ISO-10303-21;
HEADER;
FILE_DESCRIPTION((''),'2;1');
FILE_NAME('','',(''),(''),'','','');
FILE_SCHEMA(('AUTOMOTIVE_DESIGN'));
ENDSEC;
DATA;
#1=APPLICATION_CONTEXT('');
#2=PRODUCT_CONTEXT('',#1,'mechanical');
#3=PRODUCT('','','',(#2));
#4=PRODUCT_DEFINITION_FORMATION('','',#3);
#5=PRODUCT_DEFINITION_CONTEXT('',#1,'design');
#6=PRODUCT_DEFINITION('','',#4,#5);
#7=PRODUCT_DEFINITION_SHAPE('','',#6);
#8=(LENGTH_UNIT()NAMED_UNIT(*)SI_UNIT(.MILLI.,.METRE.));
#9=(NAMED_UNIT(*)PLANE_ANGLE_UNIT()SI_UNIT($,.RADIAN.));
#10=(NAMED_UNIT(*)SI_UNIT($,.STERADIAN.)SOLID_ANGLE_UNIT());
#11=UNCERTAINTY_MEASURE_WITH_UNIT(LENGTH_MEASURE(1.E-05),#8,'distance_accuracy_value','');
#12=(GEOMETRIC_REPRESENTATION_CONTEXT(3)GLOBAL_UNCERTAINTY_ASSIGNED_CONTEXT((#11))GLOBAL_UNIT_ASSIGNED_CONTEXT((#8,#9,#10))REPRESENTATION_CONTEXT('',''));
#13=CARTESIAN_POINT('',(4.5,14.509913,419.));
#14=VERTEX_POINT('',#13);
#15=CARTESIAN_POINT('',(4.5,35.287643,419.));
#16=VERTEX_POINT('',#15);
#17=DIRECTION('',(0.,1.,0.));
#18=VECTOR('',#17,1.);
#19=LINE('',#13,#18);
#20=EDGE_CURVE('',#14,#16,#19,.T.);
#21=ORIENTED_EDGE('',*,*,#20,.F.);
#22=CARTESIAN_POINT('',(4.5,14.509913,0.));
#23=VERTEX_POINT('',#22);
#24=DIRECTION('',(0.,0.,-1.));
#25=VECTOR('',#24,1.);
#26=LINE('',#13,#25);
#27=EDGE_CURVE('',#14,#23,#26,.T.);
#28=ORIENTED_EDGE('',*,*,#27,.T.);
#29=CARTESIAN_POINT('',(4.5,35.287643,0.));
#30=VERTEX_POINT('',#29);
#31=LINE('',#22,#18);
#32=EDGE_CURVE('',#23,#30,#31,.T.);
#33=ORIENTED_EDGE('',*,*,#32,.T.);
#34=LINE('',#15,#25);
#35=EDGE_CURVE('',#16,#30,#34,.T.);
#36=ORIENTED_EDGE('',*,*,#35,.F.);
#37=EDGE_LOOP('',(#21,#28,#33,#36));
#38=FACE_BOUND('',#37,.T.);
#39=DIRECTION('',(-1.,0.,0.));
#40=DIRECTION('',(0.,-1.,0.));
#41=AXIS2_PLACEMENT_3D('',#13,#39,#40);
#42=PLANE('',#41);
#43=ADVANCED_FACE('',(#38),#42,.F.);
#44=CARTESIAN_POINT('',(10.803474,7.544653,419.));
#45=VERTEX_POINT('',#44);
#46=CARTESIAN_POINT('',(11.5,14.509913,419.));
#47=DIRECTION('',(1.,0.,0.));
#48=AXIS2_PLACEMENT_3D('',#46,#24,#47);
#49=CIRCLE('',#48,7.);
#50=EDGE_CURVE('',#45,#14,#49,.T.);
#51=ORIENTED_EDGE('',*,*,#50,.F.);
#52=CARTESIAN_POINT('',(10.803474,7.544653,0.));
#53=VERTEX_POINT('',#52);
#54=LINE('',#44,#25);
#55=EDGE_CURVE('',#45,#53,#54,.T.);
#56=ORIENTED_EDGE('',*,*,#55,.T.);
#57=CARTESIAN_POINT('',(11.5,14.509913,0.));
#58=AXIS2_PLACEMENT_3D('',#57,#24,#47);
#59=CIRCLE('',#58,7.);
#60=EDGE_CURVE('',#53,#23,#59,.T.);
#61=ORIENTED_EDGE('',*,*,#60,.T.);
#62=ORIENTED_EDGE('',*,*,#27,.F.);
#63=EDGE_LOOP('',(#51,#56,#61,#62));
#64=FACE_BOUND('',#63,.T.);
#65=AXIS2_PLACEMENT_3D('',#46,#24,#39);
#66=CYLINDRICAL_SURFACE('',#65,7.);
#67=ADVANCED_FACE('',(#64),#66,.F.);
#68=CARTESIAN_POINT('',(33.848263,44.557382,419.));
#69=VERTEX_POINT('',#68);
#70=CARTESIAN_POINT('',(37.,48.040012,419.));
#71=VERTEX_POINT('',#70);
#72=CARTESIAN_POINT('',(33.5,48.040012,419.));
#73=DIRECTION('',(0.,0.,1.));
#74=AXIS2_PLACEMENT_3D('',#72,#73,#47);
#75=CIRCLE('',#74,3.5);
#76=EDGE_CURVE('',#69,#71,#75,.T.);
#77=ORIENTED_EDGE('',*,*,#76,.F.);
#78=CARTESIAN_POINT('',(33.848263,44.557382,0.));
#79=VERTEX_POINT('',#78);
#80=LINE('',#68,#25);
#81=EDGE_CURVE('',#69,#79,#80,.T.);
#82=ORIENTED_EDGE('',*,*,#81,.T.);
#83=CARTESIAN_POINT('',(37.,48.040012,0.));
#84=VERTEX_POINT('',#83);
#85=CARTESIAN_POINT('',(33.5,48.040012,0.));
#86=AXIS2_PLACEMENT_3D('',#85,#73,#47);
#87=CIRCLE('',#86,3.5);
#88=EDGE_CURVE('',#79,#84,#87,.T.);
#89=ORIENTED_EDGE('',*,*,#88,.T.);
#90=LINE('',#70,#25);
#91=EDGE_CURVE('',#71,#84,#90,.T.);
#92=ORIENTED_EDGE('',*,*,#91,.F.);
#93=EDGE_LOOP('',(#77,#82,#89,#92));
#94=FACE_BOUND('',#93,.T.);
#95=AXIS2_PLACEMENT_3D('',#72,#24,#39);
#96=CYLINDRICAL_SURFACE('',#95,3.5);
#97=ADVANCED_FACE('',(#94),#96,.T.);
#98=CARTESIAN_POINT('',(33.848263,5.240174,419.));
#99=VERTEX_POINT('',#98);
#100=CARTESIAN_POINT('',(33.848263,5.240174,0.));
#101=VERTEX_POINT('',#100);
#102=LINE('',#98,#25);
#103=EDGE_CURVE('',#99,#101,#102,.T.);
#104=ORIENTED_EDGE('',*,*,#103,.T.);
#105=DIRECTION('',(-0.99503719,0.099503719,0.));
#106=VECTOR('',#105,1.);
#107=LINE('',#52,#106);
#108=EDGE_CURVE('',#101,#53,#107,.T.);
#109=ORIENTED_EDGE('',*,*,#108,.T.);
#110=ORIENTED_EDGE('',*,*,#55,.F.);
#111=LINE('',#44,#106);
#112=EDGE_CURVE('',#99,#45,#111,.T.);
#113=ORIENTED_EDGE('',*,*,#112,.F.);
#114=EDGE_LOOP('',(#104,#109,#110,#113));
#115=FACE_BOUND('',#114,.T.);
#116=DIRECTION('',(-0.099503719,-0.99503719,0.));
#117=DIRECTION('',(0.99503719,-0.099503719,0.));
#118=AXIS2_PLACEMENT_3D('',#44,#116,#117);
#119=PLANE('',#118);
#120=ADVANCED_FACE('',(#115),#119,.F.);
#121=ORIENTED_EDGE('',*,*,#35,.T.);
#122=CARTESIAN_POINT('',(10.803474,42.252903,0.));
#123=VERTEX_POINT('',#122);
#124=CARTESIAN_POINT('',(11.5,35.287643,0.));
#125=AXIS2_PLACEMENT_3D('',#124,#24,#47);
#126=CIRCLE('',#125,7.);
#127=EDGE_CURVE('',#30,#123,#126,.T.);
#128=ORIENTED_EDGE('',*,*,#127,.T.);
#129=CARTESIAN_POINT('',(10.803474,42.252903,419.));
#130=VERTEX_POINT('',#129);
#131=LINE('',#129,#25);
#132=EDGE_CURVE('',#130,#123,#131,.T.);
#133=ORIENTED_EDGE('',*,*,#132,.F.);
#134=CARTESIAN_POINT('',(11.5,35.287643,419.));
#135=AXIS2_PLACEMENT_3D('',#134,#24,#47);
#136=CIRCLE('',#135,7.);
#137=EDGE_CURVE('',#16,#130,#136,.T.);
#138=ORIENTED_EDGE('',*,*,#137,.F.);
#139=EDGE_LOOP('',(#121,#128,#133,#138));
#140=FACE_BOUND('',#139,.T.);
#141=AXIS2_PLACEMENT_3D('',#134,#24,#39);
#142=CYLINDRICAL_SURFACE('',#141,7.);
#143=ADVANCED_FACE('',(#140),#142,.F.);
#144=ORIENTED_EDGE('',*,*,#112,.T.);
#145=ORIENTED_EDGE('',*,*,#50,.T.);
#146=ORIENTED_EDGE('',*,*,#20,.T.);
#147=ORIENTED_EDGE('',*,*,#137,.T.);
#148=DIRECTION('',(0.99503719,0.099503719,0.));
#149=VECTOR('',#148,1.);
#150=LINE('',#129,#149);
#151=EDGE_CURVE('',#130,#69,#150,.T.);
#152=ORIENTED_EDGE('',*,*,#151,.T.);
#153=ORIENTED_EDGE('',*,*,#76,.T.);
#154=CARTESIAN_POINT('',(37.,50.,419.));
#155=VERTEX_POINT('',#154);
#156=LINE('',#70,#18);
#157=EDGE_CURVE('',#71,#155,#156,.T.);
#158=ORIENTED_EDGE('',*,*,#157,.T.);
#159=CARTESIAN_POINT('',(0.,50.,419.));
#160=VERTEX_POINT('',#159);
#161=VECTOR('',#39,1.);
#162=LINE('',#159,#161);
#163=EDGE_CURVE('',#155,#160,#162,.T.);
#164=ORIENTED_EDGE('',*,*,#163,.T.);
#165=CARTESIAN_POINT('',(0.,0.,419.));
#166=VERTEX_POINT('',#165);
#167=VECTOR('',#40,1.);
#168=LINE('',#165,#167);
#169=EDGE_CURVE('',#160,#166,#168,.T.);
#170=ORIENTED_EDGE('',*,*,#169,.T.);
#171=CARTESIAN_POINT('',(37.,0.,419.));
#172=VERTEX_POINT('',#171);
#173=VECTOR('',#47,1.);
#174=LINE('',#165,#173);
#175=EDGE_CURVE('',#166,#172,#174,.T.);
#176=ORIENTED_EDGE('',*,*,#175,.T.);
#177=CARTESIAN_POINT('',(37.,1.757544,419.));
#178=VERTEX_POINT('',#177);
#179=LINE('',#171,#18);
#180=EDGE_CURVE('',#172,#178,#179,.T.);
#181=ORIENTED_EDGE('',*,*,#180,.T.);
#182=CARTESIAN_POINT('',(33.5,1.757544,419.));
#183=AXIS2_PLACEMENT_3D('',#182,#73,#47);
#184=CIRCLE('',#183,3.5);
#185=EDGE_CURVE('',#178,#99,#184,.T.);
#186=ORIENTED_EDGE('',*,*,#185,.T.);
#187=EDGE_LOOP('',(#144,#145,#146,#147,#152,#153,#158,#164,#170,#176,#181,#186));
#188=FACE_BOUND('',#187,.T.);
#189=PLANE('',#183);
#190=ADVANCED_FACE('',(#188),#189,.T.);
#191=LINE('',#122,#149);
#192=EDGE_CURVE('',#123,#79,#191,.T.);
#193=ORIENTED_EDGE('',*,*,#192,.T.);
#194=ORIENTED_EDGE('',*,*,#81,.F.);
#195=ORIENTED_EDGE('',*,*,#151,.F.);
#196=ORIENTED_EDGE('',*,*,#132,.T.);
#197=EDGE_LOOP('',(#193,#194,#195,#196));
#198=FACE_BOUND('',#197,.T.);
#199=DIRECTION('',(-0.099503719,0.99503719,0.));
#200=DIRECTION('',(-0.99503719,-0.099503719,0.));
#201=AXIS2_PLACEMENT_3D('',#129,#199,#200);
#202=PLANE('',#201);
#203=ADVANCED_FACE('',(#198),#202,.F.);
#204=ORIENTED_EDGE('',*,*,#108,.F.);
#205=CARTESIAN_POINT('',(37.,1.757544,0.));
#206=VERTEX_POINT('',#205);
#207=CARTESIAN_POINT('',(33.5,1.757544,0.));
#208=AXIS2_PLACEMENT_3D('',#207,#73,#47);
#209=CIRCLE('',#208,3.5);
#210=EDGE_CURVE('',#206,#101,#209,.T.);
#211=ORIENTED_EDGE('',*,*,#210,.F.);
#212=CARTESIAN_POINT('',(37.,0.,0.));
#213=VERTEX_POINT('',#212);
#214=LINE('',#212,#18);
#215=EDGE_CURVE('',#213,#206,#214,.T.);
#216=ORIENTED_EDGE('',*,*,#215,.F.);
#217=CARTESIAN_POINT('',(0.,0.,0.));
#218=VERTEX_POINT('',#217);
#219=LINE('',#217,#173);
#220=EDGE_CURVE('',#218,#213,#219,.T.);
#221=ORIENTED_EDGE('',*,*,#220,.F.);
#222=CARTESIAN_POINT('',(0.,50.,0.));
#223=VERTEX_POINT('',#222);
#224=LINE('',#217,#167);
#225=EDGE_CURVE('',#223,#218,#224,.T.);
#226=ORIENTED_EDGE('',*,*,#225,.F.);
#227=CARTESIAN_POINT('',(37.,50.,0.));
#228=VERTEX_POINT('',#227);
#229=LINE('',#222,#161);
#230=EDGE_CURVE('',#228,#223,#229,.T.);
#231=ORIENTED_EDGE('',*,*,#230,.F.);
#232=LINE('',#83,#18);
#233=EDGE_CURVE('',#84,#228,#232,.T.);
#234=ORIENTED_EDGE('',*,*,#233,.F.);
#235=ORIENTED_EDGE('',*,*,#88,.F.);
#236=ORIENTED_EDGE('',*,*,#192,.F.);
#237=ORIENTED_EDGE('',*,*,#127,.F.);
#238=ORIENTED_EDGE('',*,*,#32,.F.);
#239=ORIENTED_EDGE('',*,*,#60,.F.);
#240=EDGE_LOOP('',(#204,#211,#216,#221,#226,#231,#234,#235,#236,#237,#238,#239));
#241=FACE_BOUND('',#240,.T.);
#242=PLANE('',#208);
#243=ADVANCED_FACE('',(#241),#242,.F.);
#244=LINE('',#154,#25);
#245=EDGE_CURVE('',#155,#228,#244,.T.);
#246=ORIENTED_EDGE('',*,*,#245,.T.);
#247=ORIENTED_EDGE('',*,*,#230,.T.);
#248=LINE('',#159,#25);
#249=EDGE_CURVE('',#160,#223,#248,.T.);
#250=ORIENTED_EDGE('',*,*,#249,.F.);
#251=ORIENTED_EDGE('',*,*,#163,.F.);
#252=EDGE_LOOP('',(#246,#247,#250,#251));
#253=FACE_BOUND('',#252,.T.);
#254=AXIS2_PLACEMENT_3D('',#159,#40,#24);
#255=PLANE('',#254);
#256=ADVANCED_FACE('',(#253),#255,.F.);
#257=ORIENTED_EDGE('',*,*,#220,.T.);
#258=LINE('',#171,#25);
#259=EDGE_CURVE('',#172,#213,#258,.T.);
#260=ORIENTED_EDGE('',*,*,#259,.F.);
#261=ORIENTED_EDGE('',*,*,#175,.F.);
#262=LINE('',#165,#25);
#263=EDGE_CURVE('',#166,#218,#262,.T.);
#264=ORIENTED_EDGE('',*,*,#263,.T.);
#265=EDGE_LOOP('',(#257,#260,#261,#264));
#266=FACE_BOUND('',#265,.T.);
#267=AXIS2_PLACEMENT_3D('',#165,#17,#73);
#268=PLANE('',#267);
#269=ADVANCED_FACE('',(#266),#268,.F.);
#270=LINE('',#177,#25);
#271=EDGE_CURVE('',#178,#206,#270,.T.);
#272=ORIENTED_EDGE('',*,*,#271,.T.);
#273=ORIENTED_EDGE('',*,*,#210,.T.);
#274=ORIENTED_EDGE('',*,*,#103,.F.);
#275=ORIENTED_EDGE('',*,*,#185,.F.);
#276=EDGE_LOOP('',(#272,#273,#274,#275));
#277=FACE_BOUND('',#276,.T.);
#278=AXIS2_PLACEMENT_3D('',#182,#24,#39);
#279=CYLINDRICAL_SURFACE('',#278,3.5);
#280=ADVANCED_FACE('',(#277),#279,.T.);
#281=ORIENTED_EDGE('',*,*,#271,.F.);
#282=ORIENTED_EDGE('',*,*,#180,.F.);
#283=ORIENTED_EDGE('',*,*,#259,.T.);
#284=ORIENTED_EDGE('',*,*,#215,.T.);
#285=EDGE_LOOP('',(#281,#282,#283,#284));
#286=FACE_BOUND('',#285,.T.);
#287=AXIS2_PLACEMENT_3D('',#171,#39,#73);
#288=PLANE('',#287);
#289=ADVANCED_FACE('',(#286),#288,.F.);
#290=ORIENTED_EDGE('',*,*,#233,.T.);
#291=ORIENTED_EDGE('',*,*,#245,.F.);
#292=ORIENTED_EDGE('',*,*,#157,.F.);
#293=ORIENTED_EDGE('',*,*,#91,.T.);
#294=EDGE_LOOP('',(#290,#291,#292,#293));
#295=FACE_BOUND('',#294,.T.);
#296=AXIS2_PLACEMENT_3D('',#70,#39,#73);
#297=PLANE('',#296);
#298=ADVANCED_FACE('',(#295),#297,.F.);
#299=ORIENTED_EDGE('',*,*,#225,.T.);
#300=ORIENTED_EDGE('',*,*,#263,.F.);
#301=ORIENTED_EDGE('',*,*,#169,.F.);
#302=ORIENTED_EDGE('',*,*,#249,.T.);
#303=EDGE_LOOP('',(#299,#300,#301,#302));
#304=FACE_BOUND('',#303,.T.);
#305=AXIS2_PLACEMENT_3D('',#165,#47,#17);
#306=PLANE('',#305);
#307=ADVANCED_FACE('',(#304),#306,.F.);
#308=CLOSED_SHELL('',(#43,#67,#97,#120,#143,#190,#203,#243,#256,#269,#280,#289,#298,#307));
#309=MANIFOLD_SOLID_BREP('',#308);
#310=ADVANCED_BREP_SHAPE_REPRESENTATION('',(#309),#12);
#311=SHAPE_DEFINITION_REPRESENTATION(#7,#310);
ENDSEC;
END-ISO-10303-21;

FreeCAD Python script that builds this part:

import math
import FreeCAD as App
import Part
import Sketcher

doc = App.newDocument("Part")
params = doc.addObject("Spreadsheet::Sheet", "Params")
for row, (alias, value) in enumerate([
    ("sketch1_radius", "7 mm"),
    ("sketch1_radius2", "3.5 mm"),
    ("sketch1_width", "37 mm"),
    ("sketch1_height", "50 mm"),
    ("pad1_length", "419 mm"),
], start=1):
    params.set(f"A{row}", alias)
    params.set(f"B{row}", "=" + value)
    params.setAlias(f"B{row}", alias)

body = doc.addObject("PartDesign::Body", "Body")

sketch1 = doc.addObject("Sketcher::SketchObject", "Sketch")
body.addObject(sketch1)
sketch1.AttachmentSupport = (doc.XY_Plane, [""])
sketch1.MapMode = "FlatFace"
sketch1.addGeometry([
    Part.LineSegment(App.Vector(0, 50, 0), App.Vector(0, 0, 0)),
    Part.LineSegment(App.Vector(0, 0, 0), App.Vector(37, 0, 0)),
    Part.LineSegment(App.Vector(37, 0, 0), App.Vector(37, 1.8, 0)),
    Part.ArcOfCircle(Part.Circle(App.Vector(33.5, 1.8, 0), App.Vector(0, 0, 1), 3.5), math.radians(0), math.radians(84)),
    Part.LineSegment(App.Vector(33.8, 5.2, 0), App.Vector(10.8, 7.5, 0)),
    Part.ArcOfCircle(Part.Circle(App.Vector(11.5, 14.5, 0), App.Vector(0, 0, 1), 7), math.radians(180), math.radians(264)),
    Part.LineSegment(App.Vector(4.5, 14.5, 0), App.Vector(4.5, 35.3, 0)),
    Part.ArcOfCircle(Part.Circle(App.Vector(11.5, 35.3, 0), App.Vector(0, 0, 1), 7), math.radians(96), math.radians(180)),
    Part.LineSegment(App.Vector(10.8, 42.3, 0), App.Vector(33.8, 44.6, 0)),
    Part.ArcOfCircle(Part.Circle(App.Vector(33.5, 48, 0), App.Vector(0, 0, 1), 3.5), math.radians(-84), math.radians(0)),
    Part.LineSegment(App.Vector(37, 48, 0), App.Vector(37, 50, 0)),
    Part.LineSegment(App.Vector(37, 50, 0), App.Vector(0, 50, 0)),
], False)
sketch1.addConstraint([
    Sketcher.Constraint("Coincident", 0, 2, 1, 1),
    Sketcher.Constraint("Coincident", 1, 2, 2, 1),
    Sketcher.Constraint("Tangent", 2, 2, 3, 1),
    Sketcher.Constraint("Tangent", 3, 2, 4, 1),
    Sketcher.Constraint("Tangent", 4, 2, 5, 2),
    Sketcher.Constraint("Tangent", 5, 1, 6, 1),
    Sketcher.Constraint("Tangent", 6, 2, 7, 2),
    Sketcher.Constraint("Tangent", 7, 1, 8, 1),
    Sketcher.Constraint("Tangent", 8, 2, 9, 1),
    Sketcher.Constraint("Tangent", 9, 2, 10, 1),
    Sketcher.Constraint("Coincident", 10, 2, 11, 1),
    Sketcher.Constraint("Coincident", 11, 2, 0, 1),
    Sketcher.Constraint("Vertical", 0),
    Sketcher.Constraint("Horizontal", 1),
    Sketcher.Constraint("Vertical", 2),
    Sketcher.Constraint("Vertical", 6),
    Sketcher.Constraint("Vertical", 10),
    Sketcher.Constraint("Horizontal", 11),
    Sketcher.Constraint("Coincident", 0, 2, -1, 1),
    Sketcher.Constraint("Equal", 5, 7),
    Sketcher.Constraint("Equal", 3, 9),
    Sketcher.Constraint("Vertical", 3, 3, 9, 3),
    Sketcher.Constraint("Vertical", 4, 2, 7, 1),
    Sketcher.Constraint("Radius", 5, 7.0),
    Sketcher.Constraint("Radius", 3, 3.5),
    Sketcher.Constraint("DistanceX", 1, 1, 1, 2, 37.0),
    Sketcher.Constraint("DistanceY", 0, 2, 0, 1, 50.0),
    Sketcher.Constraint("DistanceX", 5, 3, 3, 3, 22.0),
    Sketcher.Constraint("DistanceY", 6, 1, 6, 2, 20.77773),
    Sketcher.Constraint("DistanceY", 3, 3, 7, 3, 33.530099),
    Sketcher.Constraint("DistanceY", 2, 1, 2, 2, 1.757544),
])
sketch1.setExpression("Constraints[23]", "Params.sketch1_radius")
sketch1.setExpression("Constraints[24]", "Params.sketch1_radius2")
sketch1.setExpression("Constraints[25]", "Params.sketch1_width")
sketch1.setExpression("Constraints[26]", "Params.sketch1_height")
pad1 = doc.addObject("PartDesign::Pad", "Pad")
body.addObject(pad1)
pad1.Profile = sketch1
pad1.setExpression("Length", "Params.pad1_length")

doc.recompute()
